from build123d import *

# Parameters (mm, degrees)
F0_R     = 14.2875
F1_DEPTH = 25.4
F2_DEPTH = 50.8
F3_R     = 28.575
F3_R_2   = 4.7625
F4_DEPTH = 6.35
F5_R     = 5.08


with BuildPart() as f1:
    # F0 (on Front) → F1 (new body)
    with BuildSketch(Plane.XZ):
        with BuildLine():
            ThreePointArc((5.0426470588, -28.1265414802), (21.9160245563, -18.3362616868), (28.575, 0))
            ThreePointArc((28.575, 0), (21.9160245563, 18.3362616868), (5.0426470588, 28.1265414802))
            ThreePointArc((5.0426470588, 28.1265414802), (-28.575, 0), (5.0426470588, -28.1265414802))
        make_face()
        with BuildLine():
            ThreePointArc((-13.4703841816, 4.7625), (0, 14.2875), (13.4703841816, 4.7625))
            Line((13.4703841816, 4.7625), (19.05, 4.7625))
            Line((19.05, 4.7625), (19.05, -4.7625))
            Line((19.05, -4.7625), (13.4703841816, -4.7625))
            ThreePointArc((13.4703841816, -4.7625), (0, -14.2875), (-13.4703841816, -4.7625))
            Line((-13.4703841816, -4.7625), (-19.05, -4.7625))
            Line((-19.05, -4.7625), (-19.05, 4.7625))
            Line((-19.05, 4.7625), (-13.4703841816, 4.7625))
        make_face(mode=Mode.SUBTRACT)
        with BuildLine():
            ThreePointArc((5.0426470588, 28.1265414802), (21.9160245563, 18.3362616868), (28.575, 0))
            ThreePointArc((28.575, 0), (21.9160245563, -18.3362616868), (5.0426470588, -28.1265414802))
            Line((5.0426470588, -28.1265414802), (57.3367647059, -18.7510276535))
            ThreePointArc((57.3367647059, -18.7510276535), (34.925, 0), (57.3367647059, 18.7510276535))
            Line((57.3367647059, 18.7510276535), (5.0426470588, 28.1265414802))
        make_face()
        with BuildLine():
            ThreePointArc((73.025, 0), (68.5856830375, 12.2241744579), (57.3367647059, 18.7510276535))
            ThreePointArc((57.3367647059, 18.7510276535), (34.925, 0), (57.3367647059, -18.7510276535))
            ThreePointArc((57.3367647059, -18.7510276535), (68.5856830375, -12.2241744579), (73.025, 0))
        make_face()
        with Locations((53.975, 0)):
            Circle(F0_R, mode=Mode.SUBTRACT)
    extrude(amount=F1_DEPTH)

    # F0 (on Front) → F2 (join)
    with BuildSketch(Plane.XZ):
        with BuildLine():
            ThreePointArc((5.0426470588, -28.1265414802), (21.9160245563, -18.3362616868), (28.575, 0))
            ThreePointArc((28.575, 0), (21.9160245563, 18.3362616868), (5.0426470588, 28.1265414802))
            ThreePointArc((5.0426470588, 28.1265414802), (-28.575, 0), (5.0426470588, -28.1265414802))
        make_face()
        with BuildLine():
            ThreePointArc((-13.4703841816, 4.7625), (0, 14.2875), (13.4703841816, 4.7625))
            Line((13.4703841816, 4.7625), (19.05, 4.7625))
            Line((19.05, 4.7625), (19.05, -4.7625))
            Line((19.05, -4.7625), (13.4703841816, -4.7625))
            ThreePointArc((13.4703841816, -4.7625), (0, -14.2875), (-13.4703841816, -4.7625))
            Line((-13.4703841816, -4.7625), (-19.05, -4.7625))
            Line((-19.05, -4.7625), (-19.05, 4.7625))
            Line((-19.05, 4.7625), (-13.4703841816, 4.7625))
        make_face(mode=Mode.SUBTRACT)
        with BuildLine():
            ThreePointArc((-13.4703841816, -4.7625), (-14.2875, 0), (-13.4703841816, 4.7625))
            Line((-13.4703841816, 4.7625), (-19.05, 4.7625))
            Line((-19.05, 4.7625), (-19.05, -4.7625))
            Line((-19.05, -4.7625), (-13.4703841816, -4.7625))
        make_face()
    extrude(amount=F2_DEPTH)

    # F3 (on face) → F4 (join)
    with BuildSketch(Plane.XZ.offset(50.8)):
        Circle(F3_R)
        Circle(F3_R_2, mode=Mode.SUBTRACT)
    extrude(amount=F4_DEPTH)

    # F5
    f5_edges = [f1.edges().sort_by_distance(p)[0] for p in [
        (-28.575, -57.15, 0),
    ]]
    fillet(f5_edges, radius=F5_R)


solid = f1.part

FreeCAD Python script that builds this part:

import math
import FreeCAD as App
import Part
import Sketcher
from FreeCAD import Vector
Q = App.Units.Quantity


def edges_at(feature, points):
    """Names of the edges that pass closest to the given points."""
    edges = feature.Shape.Edges
    near = lambda p: min(range(len(edges)), key=lambda i: edges[i].distToShape(Part.Vertex(*p))[0])
    return sorted({f"Edge{near(p) + 1}" for p in points})

doc = App.newDocument("Part")
body = doc.addObject("PartDesign::Body", "Body")

# Sketch on XZ plane
sketch1 = doc.addObject("Sketcher::SketchObject", "Sketch")
body.addObject(sketch1)
sketch1.AttachmentSupport = (doc.XZ_Plane, [""])
sketch1.MapMode = "FlatFace"
sketch1.addGeometry([
    Part.ArcOfCircle(Part.Circle(Vector(0, 0, 0), Vector(0, 0, 1), 29), math.radians(80), math.radians(280)),  # 0
    Part.LineSegment(Vector(5, -28, 0), Vector(57, -19, 0)),  # 1
    Part.ArcOfCircle(Part.Circle(Vector(54, 0, 0), Vector(0, 0, 1), 19), math.radians(-80), math.radians(0)),  # 2
    Part.ArcOfCircle(Part.Circle(Vector(54, 0, 0), Vector(0, 0, 1), 19), math.radians(0), math.radians(80)),  # 3
    Part.LineSegment(Vector(57, 19, 0), Vector(5, 28, 0)),  # 4
    Part.Circle(Vector(54, 0, 0), Vector(0, 0, 1), 14),  # 5
    Part.LineSegment(Vector(-19, 5, 0), Vector(-13, 5, 0)),  # 6
    Part.ArcOfCircle(Part.Circle(Vector(0, 0, 0), Vector(0, 0, 1), 14), math.radians(19), math.radians(161)),  # 7
    Part.LineSegment(Vector(13, 5, 0), Vector(19, 5, 0)),  # 8
    Part.LineSegment(Vector(19, 5, 0), Vector(19, -5, 0)),  # 9
    Part.LineSegment(Vector(19, -5, 0), Vector(13, -5, 0)),  # 10
    Part.ArcOfCircle(Part.Circle(Vector(0, 0, 0), Vector(0, 0, 1), 14), math.radians(-161), math.radians(-19)),  # 11
    Part.LineSegment(Vector(-13, -5, 0), Vector(-19, -5, 0)),  # 12
    Part.LineSegment(Vector(-19, -5, 0), Vector(-19, 5, 0)),  # 13
], False)
sketch1.addConstraint([
    Sketcher.Constraint("Tangent", 0, 2, 1, 1),
    Sketcher.Constraint("Tangent", 1, 2, 2, 1),
    Sketcher.Constraint("Tangent", 2, 2, 3, 1),
    Sketcher.Constraint("Tangent", 3, 2, 4, 1),
    Sketcher.Constraint("Tangent", 4, 2, 0, 1),
    Sketcher.Constraint("Coincident", 6, 2, 7, 2),
    Sketcher.Constraint("Coincident", 7, 1, 8, 1),
    Sketcher.Constraint("Coincident", 8, 2, 9, 1),
    Sketcher.Constraint("Coincident", 9, 2, 10, 1),
    Sketcher.Constraint("Coincident", 10, 2, 11, 2),
    Sketcher.Constraint("Coincident", 11, 1, 12, 1),
    Sketcher.Constraint("Coincident", 12, 2, 13, 1),
    Sketcher.Constraint("Coincident", 13, 2, 6, 1),
    Sketcher.Constraint("Horizontal", 6),
    Sketcher.Constraint("Horizontal", 8),
    Sketcher.Constraint("Vertical", 9),
    Sketcher.Constraint("Horizontal", 10),
    Sketcher.Constraint("Horizontal", 12),
    Sketcher.Constraint("Vertical", 13),
    Sketcher.Constraint("Coincident", 0, 3, -1, 1),
    Sketcher.Constraint("Coincident", 7, 3, -1, 1),
    Sketcher.Constraint("Coincident", 11, 3, -1, 1),
    Sketcher.Constraint("Coincident", 5, 3, 2, 3),
    Sketcher.Constraint("Equal", 2, 3),
    Sketcher.Constraint("Equal", 5, 7),
    Sketcher.Constraint("Equal", 7, 11),
    Sketcher.Constraint("Symmetric", 8, 2, 12, 2, -1, 1),
    Sketcher.Constraint("PointOnObject", 2, 3, -1),
    Sketcher.Constraint("PointOnObject", 2, 2, -1),
    Sketcher.Constraint("Horizontal", 6, 2, 7, 1),
    Sketcher.Constraint("Horizontal", 10, 2, 11, 1),
    Sketcher.Constraint("Radius", 2, Q("0.75 in")),
    Sketcher.Constraint("Diameter", 5, Q("1.125 in")),
    Sketcher.Constraint("Radius", 0, Q("1.125 in")),
    Sketcher.Constraint("DistanceY", 9, 2, 9, 1, Q("0.375 in")),
    Sketcher.Constraint("DistanceX", -1, 1, 8, 2, Q("0.75 in")),
    Sketcher.Constraint("DistanceX", -1, 1, 2, 3, Q("2.125 in")),
])
pad1 = doc.addObject("PartDesign::Pad", "Pad")
body.addObject(pad1)
pad1.Profile = sketch1
pad1.Length = Q("1 in")

# Sketch on XZ plane
sketch2 = doc.addObject("Sketcher::SketchObject", "Sketch001")
body.addObject(sketch2)
sketch2.AttachmentSupport = (doc.XZ_Plane, [""])
sketch2.MapMode = "FlatFace"
sketch2.addGeometry([
    Part.ArcOfCircle(Part.Circle(Vector(0, 0, 0), Vector(0, 0, 1), 29), math.radians(-80), math.radians(80)),  # 0
    Part.ArcOfCircle(Part.Circle(Vector(0, 0, 0), Vector(0, 0, 1), 29), math.radians(80), math.radians(280)),  # 1
    Part.ArcOfCircle(Part.Circle(Vector(0, 0, 0), Vector(0, 0, 1), 14), math.radians(-161), math.radians(-19)),  # 2
    Part.ArcOfCircle(Part.Circle(Vector(0, 0, 0), Vector(0, 0, 1), 14), math.radians(161), math.radians(199)),  # 3
    Part.ArcOfCircle(Part.Circle(Vector(0, 0, 0), Vector(0, 0, 1), 14), math.radians(19), math.radians(161)),  # 4
    Part.LineSegment(Vector(13, 5, 0), Vector(19, 5, 0)),  # 5
    Part.LineSegment(Vector(19, 5, 0), Vector(19, -5, 0)),  # 6
    Part.LineSegment(Vector(19, -5, 0), Vector(13, -5, 0)),  # 7
], False)
sketch2.addConstraint([
    Sketcher.Constraint("Tangent", 0, 1, 1, 2),
    Sketcher.Constraint("Coincident", 1, 1, 0, 2),
    Sketcher.Constraint("Tangent", 2, 1, 3, 2),
    Sketcher.Constraint("Tangent", 3, 1, 4, 2),
    Sketcher.Constraint("Coincident", 4, 1, 5, 1),
    Sketcher.Constraint("Coincident", 5, 2, 6, 1),
    Sketcher.Constraint("Coincident", 6, 2, 7, 1),
    Sketcher.Constraint("Coincident", 7, 2, 2, 2),
    Sketcher.Constraint("Horizontal", 5),
    Sketcher.Constraint("Vertical", 6),
    Sketcher.Constraint("Horizontal", 7),
    Sketcher.Constraint("Coincident", 0, 3, -1, 1),
    Sketcher.Constraint("Coincident", 2, 3, -1, 1),
    Sketcher.Constraint("Coincident", 4, 3, -1, 1),
    Sketcher.Constraint("Horizontal", 3, 1, 4, 1),
    Sketcher.Constraint("Horizontal", 2, 1, 6, 2),
    Sketcher.Constraint("Vertical", 0, 1, 1, 1),
    Sketcher.Constraint("Vertical", 2, 1, 3, 1),
    Sketcher.Constraint("Radius", 0, Q("1.125 in")),
    Sketcher.Constraint("Radius", 2, Q("0.5625 in")),
    Sketcher.Constraint("DistanceY", 6, 2, 6, 1, Q("0.375 in")),
    Sketcher.Constraint("DistanceX", -1, 1, 5, 2, Q("0.75 in")),
    Sketcher.Constraint("DistanceY", 0, 1, -1, 1, Q("28.126541 mm")),
])
pad2 = doc.addObject("PartDesign::Pad", "Pad001")
body.addObject(pad2)
pad2.Profile = sketch2
pad2.Length = Q("2 in")

# Sketch on XZ plane
sketch3 = doc.addObject("Sketcher::SketchObject", "Sketch002")
body.addObject(sketch3)
sketch3.AttachmentSupport = (doc.XZ_Plane, [""])
sketch3.MapMode = "FlatFace"
sketch3.AttachmentOffset = App.Placement(Vector(0, 0, 2 * 25.4), App.Rotation())
sketch3.addGeometry([
    Part.Circle(Vector(0, 0, 0), Vector(0, 0, 1), 28.6),
    Part.Circle(Vector(0, 0, 0), Vector(0, 0, 1), 4.8),
], False)
sketch3.addConstraint([
    Sketcher.Constraint("Coincident", 0, 3, -1, 1),
    Sketcher.Constraint("Coincident", 1, 3, -1, 1),
    Sketcher.Constraint("Diameter", 0, Q("2.25 in")),
    Sketcher.Constraint("Diameter", 1, Q("0.375 in")),
])
pad3 = doc.addObject("PartDesign::Pad", "Pad002")
body.addObject(pad3)
pad3.Profile = sketch3
pad3.Length = Q("0.25 in")
doc.recompute()

fillet = doc.addObject("PartDesign::Fillet", "Fillet")
body.addObject(fillet)
fillet.Base = (pad3, edges_at(pad3, [(-28.575, -57.15, 0)]))
fillet.Radius = Q("0.2 in")

doc.recompute()
